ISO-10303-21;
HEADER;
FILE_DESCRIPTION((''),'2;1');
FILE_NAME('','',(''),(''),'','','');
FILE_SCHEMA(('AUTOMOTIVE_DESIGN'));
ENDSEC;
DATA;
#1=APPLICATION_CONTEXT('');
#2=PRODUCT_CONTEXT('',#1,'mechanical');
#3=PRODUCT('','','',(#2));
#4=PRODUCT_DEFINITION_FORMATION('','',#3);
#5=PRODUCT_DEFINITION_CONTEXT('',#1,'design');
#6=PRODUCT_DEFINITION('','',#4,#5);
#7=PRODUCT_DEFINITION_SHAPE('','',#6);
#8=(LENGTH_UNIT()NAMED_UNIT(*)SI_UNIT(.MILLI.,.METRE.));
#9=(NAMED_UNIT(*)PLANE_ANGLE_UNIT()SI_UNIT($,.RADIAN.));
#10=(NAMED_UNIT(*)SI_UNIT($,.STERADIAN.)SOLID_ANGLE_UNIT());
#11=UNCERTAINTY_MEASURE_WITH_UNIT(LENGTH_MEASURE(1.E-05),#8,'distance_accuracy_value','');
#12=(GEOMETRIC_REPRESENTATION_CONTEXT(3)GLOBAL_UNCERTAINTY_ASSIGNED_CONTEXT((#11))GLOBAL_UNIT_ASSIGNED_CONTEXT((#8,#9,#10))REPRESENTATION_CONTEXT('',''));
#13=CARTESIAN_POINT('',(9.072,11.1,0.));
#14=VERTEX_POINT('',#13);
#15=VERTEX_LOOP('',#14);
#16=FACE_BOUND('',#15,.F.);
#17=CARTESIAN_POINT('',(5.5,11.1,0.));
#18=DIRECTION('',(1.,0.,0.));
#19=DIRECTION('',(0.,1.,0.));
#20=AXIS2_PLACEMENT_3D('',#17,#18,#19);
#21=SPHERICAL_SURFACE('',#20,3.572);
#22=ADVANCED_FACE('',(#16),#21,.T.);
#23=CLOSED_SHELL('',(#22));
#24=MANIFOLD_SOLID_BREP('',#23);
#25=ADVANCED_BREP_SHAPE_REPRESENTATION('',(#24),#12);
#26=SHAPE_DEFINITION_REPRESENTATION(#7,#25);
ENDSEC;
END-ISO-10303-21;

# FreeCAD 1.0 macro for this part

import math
import FreeCAD as App
import Part
import Sketcher

V = App.Vector

doc = App.newDocument("Part")
body = doc.addObject("PartDesign::Body", "Body")

sketch1 = body.newObject("Sketcher::SketchObject", "Sketch")
sketch1.AttachmentSupport = (doc.getObject("XY_Plane"), [""])
sketch1.MapMode = "FlatFace"
sketch1.addGeometry([
    Part.ArcOfCircle(Part.Circle(V(5.5, 11.1, 0), V(0, 0, 1), 3.572), math.radians(0), math.radians(180)),
    Part.LineSegment(V(1.928, 11.1, 0), V(9.072, 11.1, 0)),
], False)
sketch1.addGeometry(Part.LineSegment(V(9.072, 11.1, 0), V(1.928, 11.1, 0)), True)
sketch1.addConstraint([
    Sketcher.Constraint("Coincident", 0, 1, 1, 2),
    Sketcher.Constraint("Coincident", 1, 1, 0, 2),
    Sketcher.Constraint("Horizontal", 1),
    Sketcher.Constraint("Horizontal", 2),
    Sketcher.Constraint("Coincident", 2, 1, 0, 1),
    Sketcher.Constraint("Equal", 1, 2),
    Sketcher.Constraint("Radius", 0, 3.572),
    Sketcher.Constraint("DistanceX", -1, 1, 0, 3, 5.5),
    Sketcher.Constraint("DistanceY", -1, 1, 0, 3, 11.1),
    Sketcher.Constraint("DistanceY", -1, 1, 0, 1, 11.1),
])
revolution = body.newObject("PartDesign::Revolution", "Revolution")
revolution.Profile = sketch1
revolution.ReferenceAxis = (sketch1, ["Axis0"])
revolution.Angle = 360

doc.recompute()
